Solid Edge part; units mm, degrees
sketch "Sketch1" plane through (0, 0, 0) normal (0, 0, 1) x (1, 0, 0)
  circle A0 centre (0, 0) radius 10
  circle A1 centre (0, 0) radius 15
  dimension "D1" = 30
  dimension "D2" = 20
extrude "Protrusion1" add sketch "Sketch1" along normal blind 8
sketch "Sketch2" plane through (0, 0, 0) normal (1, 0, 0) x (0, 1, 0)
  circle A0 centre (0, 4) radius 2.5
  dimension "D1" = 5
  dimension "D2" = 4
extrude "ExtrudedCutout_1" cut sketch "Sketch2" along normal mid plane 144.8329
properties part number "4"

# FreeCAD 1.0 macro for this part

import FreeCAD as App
import Part
import Sketcher

V = App.Vector

doc = App.newDocument("Part")
body = doc.addObject("PartDesign::Body", "Body")

sketch1 = body.newObject("Sketcher::SketchObject", "Sketch")
sketch1.AttachmentSupport = (doc.getObject("XY_Plane"), [""])
sketch1.MapMode = "FlatFace"
sketch1.addGeometry(Part.Circle(V(0, 0, 0), V(0, 0, 1), 15), False)
sketch1.addGeometry(Part.Circle(V(0, 0, 0), V(0, 0, 1), 10), False)
sketch1.addConstraint(Sketcher.Constraint("Coincident", 0, 3, -1, 1))
sketch1.addConstraint(Sketcher.Constraint("Coincident", 1, 3, -1, 1))
sketch1.addConstraint(Sketcher.Constraint("Diameter", 0, 30.0))
sketch1.addConstraint(Sketcher.Constraint("Diameter", 1, 20.0))
pad1 = body.newObject("PartDesign::Pad", "Pad")
pad1.Profile = sketch1
pad1.Length = 8

sketch2 = body.newObject("Sketcher::SketchObject", "Sketch001")
sketch2.AttachmentSupport = (doc.getObject("YZ_Plane"), [""])
sketch2.MapMode = "FlatFace"
sketch2.addGeometry(Part.Circle(V(0, 4, 0), V(0, 0, 1), 2.5), False)
sketch2.addConstraint(Sketcher.Constraint("PointOnObject", 0, 3, -2))
sketch2.addConstraint(Sketcher.Constraint("Diameter", 0, 5.0))
sketch2.addConstraint(Sketcher.Constraint("DistanceY", -1, 1, 0, 3, 4.0))
pocket1 = body.newObject("PartDesign::Pocket", "Pocket")
pocket1.Profile = sketch2
pocket1.Length = 144.8329
pocket1.Midplane = True

doc.recompute()
